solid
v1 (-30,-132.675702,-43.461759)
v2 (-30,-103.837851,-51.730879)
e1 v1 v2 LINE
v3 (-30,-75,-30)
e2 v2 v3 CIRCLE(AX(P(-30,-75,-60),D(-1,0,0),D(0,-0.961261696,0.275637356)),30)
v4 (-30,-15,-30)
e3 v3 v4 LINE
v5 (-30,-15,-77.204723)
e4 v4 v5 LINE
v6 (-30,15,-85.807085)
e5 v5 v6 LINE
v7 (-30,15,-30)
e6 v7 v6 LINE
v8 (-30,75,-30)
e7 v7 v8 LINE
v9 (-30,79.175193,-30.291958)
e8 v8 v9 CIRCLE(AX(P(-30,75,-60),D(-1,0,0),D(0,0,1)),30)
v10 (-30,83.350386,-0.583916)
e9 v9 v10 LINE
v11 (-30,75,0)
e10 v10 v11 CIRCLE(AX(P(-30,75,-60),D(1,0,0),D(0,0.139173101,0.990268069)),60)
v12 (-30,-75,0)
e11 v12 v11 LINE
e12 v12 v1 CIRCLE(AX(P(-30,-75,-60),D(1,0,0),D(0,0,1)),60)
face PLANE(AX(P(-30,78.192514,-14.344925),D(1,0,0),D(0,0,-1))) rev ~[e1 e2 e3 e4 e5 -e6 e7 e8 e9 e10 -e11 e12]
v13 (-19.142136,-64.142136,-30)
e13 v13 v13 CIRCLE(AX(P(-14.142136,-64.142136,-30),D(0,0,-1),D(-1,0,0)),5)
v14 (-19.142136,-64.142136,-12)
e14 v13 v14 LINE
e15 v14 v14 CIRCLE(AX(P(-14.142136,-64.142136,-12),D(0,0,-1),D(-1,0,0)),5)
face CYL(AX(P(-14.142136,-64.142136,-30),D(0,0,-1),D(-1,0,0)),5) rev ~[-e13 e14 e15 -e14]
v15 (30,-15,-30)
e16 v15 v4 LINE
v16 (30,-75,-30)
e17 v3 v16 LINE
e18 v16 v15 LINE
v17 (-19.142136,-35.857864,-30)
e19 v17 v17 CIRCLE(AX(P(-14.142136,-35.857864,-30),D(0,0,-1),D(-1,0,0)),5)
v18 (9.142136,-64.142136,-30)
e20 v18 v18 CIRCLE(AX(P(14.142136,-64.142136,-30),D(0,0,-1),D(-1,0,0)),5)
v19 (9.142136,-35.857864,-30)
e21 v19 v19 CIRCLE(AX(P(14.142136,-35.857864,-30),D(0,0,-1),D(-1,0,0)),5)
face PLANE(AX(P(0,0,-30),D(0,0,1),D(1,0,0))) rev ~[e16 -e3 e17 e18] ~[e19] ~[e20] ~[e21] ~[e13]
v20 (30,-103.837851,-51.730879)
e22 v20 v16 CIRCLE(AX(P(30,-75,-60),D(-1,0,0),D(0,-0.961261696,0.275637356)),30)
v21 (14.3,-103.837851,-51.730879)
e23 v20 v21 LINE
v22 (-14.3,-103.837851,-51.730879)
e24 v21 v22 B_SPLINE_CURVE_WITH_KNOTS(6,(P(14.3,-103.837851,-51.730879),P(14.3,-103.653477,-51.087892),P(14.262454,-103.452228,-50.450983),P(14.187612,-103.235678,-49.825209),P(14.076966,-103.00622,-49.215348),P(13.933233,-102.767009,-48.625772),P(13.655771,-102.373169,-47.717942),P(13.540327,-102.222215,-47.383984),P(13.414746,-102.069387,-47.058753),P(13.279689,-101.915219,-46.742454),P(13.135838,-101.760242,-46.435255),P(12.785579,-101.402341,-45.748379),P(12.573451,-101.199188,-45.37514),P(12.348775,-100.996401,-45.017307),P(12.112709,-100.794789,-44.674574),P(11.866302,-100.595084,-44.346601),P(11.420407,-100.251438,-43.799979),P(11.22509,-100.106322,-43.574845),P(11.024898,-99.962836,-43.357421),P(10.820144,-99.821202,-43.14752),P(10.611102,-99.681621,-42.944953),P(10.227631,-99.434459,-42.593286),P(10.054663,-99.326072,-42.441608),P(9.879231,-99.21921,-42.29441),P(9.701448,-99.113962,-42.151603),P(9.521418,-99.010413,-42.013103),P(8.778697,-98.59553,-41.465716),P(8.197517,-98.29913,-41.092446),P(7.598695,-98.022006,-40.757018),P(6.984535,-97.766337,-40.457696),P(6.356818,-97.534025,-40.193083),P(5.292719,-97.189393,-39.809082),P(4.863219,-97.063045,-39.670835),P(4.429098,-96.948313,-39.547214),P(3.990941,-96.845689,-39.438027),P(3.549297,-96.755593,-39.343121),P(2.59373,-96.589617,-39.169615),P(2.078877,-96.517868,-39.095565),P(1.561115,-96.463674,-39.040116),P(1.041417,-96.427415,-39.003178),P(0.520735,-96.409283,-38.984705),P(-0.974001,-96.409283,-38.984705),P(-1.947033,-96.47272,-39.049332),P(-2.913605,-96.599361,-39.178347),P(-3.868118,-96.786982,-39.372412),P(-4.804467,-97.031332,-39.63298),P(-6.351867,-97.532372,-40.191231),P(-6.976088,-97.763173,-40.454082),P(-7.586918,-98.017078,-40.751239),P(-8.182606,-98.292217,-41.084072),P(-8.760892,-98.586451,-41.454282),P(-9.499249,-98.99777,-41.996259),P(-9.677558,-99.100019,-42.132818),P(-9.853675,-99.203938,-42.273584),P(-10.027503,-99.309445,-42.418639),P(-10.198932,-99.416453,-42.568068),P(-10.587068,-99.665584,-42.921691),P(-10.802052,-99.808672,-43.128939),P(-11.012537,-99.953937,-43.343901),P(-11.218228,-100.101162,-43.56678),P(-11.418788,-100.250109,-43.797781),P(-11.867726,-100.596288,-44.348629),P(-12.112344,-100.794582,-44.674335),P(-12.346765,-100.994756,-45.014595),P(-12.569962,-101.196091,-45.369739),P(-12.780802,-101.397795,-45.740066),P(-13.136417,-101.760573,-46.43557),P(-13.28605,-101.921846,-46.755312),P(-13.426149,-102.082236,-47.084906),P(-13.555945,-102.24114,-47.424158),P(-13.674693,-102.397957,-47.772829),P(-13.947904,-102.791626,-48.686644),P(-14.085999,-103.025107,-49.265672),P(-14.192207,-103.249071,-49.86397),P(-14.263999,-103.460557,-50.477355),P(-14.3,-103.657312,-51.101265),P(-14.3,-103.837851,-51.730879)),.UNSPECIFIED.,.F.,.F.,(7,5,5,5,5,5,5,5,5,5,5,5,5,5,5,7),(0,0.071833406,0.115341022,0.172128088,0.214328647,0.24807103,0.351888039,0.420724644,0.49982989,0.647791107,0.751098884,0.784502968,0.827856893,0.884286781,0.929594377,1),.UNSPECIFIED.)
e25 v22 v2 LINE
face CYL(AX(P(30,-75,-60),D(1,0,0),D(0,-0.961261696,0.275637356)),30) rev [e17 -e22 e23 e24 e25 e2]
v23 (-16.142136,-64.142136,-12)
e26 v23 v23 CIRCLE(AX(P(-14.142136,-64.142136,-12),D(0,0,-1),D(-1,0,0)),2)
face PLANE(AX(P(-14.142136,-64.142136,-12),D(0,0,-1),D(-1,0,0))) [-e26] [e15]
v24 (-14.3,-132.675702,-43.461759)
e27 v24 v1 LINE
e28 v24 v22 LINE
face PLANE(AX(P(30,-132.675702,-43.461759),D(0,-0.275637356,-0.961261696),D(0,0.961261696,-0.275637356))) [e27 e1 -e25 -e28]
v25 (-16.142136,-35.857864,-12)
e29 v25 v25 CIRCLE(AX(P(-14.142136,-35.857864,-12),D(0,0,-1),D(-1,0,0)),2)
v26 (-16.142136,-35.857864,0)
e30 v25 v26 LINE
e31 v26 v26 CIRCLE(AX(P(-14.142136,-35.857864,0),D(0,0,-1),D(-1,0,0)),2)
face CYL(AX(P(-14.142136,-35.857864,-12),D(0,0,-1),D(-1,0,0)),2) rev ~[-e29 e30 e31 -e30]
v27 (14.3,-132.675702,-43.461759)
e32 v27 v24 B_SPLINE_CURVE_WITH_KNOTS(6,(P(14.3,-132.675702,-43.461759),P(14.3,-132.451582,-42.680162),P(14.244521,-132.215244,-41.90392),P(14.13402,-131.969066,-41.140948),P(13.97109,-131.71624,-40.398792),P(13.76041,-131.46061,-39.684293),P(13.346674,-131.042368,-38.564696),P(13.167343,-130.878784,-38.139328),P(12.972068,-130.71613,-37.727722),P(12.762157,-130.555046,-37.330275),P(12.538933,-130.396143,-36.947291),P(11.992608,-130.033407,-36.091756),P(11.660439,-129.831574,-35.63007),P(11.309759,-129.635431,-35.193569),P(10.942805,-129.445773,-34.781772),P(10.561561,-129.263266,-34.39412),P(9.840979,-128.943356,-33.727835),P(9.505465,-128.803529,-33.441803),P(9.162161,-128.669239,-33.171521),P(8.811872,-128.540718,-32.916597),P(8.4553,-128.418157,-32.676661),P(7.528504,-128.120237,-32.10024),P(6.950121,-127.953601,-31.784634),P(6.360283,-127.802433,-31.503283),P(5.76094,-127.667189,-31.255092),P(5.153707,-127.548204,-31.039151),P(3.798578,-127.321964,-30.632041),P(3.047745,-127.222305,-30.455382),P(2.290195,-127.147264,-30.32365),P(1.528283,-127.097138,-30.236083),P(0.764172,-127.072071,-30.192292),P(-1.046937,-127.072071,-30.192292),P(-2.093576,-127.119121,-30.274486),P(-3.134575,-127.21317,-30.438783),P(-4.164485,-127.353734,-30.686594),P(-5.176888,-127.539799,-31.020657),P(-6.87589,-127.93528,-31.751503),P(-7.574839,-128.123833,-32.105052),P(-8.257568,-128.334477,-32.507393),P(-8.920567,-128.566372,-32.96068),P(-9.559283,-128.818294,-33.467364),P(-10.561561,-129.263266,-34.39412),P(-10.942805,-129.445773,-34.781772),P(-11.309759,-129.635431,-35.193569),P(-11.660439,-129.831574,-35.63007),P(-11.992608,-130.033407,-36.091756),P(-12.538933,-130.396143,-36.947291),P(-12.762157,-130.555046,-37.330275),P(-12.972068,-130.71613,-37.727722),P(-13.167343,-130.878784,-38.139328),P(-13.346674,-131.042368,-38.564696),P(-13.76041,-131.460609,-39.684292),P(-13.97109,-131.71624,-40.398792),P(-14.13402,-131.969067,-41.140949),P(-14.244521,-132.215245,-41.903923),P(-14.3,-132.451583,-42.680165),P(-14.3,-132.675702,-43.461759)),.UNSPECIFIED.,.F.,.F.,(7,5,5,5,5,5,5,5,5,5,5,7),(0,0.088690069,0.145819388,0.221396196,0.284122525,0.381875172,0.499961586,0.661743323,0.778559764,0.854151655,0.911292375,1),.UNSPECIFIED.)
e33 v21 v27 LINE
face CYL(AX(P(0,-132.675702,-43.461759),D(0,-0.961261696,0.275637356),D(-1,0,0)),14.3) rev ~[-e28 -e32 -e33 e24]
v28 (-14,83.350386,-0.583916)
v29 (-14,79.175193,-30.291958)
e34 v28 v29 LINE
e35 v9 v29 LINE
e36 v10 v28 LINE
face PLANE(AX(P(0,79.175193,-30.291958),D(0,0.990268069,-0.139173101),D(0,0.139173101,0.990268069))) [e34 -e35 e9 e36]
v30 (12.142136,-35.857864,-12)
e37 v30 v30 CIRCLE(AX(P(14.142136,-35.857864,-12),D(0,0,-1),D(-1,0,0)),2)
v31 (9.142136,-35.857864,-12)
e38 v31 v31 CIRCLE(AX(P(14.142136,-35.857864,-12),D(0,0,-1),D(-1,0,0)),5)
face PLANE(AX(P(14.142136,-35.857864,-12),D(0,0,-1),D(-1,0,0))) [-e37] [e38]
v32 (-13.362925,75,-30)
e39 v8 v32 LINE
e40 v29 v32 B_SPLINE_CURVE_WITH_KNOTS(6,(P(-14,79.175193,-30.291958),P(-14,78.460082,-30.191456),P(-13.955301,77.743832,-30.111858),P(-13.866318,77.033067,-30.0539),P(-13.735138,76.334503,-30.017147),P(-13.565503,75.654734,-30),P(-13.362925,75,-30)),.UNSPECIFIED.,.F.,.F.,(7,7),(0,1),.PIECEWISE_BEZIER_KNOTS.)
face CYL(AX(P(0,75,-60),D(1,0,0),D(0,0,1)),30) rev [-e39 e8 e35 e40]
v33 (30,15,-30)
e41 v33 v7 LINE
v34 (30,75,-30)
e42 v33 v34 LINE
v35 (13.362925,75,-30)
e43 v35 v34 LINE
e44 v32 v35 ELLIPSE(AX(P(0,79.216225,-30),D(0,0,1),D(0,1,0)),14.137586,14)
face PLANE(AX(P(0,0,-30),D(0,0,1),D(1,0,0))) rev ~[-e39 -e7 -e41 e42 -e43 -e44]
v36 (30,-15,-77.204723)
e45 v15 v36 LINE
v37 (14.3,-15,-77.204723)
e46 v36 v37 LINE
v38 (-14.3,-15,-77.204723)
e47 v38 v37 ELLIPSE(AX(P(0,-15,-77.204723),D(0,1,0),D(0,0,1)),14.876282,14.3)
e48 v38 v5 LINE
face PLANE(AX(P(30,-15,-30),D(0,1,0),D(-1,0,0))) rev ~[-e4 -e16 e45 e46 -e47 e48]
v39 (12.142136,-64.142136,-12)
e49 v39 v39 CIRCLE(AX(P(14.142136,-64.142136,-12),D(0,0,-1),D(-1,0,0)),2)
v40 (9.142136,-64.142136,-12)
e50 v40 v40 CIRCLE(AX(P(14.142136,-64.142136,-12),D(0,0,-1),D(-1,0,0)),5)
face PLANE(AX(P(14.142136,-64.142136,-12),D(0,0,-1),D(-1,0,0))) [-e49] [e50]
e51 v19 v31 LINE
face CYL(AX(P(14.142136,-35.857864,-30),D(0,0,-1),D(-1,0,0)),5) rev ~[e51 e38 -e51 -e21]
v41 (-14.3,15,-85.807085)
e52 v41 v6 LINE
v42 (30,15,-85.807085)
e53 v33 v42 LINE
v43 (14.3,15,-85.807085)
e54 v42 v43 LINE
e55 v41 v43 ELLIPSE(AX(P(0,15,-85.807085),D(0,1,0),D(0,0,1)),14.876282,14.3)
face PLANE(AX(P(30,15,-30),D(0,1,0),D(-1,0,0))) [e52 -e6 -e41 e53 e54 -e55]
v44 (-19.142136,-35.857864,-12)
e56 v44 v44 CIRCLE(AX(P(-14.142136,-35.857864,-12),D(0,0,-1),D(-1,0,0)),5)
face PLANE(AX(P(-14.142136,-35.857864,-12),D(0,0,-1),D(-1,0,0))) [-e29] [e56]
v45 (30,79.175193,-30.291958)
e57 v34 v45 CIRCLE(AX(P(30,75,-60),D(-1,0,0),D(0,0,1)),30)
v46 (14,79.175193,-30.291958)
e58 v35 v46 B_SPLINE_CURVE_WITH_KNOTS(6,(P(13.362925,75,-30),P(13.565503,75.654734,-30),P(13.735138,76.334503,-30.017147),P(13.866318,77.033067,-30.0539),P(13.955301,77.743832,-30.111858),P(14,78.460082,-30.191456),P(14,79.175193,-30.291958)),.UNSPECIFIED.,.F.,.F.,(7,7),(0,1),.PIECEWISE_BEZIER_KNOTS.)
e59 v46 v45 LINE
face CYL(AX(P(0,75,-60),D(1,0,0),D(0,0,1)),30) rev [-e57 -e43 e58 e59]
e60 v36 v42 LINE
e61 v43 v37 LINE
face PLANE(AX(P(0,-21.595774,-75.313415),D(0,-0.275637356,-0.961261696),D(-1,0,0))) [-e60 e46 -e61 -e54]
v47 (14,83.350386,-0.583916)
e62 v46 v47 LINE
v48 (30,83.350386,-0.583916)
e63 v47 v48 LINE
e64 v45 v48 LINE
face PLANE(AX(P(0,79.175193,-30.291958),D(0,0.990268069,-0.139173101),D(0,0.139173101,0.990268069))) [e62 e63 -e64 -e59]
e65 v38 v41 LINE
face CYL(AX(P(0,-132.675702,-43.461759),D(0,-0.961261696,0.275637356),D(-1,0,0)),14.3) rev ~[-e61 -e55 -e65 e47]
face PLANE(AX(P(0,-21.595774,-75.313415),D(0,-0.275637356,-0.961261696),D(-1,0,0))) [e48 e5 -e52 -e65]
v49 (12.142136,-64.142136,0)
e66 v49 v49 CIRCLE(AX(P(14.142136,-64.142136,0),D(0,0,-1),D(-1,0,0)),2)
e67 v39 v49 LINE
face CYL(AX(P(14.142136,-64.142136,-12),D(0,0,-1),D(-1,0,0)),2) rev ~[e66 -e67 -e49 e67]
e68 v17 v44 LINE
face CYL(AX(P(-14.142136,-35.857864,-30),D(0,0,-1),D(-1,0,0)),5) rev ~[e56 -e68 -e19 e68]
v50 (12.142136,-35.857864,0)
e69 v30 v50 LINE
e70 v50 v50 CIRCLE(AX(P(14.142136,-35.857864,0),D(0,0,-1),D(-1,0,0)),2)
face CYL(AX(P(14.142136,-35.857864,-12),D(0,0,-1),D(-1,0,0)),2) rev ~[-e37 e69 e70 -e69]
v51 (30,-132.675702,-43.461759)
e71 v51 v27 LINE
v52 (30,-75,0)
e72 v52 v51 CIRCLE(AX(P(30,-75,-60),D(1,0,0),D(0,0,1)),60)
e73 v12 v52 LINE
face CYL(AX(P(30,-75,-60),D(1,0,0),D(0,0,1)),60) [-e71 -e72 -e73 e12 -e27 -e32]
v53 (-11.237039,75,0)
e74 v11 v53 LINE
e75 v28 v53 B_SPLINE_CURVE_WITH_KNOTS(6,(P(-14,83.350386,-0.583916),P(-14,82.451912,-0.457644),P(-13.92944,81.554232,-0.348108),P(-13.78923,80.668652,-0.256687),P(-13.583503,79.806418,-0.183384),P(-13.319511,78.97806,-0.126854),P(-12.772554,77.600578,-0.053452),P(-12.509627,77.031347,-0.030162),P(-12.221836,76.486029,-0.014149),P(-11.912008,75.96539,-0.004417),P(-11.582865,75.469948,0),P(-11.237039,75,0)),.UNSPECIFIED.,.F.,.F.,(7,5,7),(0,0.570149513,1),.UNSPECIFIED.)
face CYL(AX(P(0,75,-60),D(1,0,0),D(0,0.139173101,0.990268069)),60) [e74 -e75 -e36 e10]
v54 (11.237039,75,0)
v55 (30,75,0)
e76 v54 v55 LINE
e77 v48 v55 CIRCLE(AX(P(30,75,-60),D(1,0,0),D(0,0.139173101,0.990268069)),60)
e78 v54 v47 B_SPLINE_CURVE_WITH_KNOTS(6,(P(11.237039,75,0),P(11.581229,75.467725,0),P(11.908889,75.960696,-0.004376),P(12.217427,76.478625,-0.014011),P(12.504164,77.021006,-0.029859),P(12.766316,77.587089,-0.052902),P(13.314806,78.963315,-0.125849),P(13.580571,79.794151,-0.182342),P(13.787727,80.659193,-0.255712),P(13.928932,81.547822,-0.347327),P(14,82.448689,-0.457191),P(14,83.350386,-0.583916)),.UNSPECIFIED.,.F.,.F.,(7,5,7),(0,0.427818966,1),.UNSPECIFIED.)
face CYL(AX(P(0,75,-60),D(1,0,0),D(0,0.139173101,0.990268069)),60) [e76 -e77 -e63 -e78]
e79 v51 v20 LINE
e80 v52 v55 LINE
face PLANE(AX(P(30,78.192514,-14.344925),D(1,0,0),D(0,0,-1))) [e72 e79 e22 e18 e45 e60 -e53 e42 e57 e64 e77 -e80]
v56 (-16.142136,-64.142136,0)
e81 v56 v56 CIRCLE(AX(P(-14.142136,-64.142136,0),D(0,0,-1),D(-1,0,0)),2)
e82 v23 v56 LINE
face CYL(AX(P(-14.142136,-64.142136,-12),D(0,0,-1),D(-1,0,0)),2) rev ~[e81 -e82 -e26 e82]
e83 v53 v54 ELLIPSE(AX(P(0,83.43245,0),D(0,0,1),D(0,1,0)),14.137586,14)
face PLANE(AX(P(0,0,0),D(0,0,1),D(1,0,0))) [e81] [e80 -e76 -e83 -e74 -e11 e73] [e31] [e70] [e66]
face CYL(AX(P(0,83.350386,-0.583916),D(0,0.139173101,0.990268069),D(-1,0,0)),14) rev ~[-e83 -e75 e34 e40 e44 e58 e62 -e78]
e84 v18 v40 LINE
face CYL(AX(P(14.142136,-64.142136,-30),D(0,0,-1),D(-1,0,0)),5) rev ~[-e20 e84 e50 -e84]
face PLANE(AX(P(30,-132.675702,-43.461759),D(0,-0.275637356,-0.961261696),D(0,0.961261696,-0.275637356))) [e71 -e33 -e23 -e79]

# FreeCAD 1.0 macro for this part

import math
import FreeCAD as App
import Part
import Sketcher

V = App.Vector
Q = App.Units.Quantity

doc = App.newDocument("Part")
body = doc.addObject("PartDesign::Body", "Body")

sketch1 = body.newObject("Sketcher::SketchObject", "Sketch")
sketch1.AttachmentSupport = (doc.getObject("XY_Plane"), [""])
sketch1.MapMode = "FlatFace"
sketch1.addGeometry([
    Part.LineSegment(V(-30, 75, 0), V(-30, -75, 0)),
    Part.LineSegment(V(-30, -75, 0), V(30, -75, 0)),
    Part.LineSegment(V(30, -75, 0), V(30, 75, 0)),
    Part.LineSegment(V(30, 75, 0), V(-30, 75, 0)),
], False)
sketch1.addConstraint([
    Sketcher.Constraint("Coincident", 0, 2, 1, 1),
    Sketcher.Constraint("Coincident", 1, 2, 2, 1),
    Sketcher.Constraint("Coincident", 2, 2, 3, 1),
    Sketcher.Constraint("Coincident", 3, 2, 0, 1),
    Sketcher.Constraint("Vertical", 0),
    Sketcher.Constraint("Horizontal", 1),
    Sketcher.Constraint("Vertical", 2),
    Sketcher.Constraint("Horizontal", 3),
    Sketcher.Constraint("Symmetric", 0, 2, 2, 2, -1, 1),
    Sketcher.Constraint("DistanceX", 1, 1, 1, 2, 60.0),
    Sketcher.Constraint("DistanceY", 0, 2, 0, 1, 150.0),
])
pad1 = body.newObject("PartDesign::Pad", "Pad")
pad1.Profile = sketch1
pad1.Length = 30
pad1.Reversed = True

sketch2 = body.newObject("Sketcher::SketchObject", "Sketch001")
sketch2.AttachmentSupport = (doc.getObject("XY_Plane"), [""])
sketch2.MapMode = "FlatFace"
sketch2.AttachmentOffset = App.Placement(V(0, 0, -30), App.Rotation())
sketch2.addGeometry([
    Part.Circle(V(14, -36, 0), V(0, 0, 1), 5),
    Part.Circle(V(-14, -36, 0), V(0, 0, 1), 5),
    Part.Circle(V(-14, -64, 0), V(0, 0, 1), 5),
    Part.Circle(V(14, -64, 0), V(0, 0, 1), 5),
], False)
sketch2.addConstraint([
    Sketcher.Constraint("Equal", 0, 1),
    Sketcher.Constraint("Equal", 1, 2),
    Sketcher.Constraint("Equal", 2, 3),
    Sketcher.Constraint("Symmetric", 0, 3, 1, 3, -2),
    Sketcher.Constraint("Symmetric", 2, 3, 3, 3, -2),
    Sketcher.Constraint("Vertical", 1, 3, 2, 3),
    Sketcher.Constraint("Diameter", 0, 10.0),
    Sketcher.Constraint("DistanceX", 1, 3, 0, 3, 28.284271),
    Sketcher.Constraint("DistanceY", 2, 3, 1, 3, 28.284271),
    Sketcher.Constraint("DistanceY", 0, 3, -1, 1, 35.857864),
])
pocket1 = body.newObject("PartDesign::Pocket", "Pocket")
pocket1.Profile = sketch2
pocket1.Length = 18
pocket1.Reversed = True

sketch3 = body.newObject("Sketcher::SketchObject", "Sketch002")
sketch3.AttachmentSupport = (doc.getObject("XY_Plane"), [""])
sketch3.MapMode = "FlatFace"
sketch3.AttachmentOffset = App.Placement(V(0, 0, -12), App.Rotation())
sketch3.addGeometry([
    Part.Circle(V(-14.1, -64.1, 0), V(0, 0, 1), 2),
    Part.Circle(V(14.1, -64.1, 0), V(0, 0, 1), 2),
    Part.Circle(V(14.1, -35.9, 0), V(0, 0, 1), 2),
    Part.Circle(V(-14.1, -35.9, 0), V(0, 0, 1), 2),
], False)
sketch3.addConstraint([
    Sketcher.Constraint("Equal", 0, 1),
    Sketcher.Constraint("Equal", 1, 2),
    Sketcher.Constraint("Equal", 2, 3),
    Sketcher.Constraint("Symmetric", 0, 3, 1, 3, -2),
    Sketcher.Constraint("Symmetric", 2, 3, 3, 3, -2),
    Sketcher.Constraint("Vertical", 1, 3, 2, 3),
    Sketcher.Constraint("Diameter", 0, 4.0),
    Sketcher.Constraint("DistanceX", 0, 3, 1, 3, 28.284271),
    Sketcher.Constraint("DistanceY", 1, 3, 2, 3, 28.284271),
    Sketcher.Constraint("DistanceY", 0, 3, -1, 1, 64.142136),
])
pocket2 = body.newObject("PartDesign::Pocket", "Pocket001")
pocket2.Profile = sketch3
pocket2.Type = "ThroughAll"
pocket2.Reversed = True

sketch4 = body.newObject("Sketcher::SketchObject", "Sketch003")
sketch4.AttachmentSupport = (doc.getObject("YZ_Plane"), [""])
sketch4.MapMode = "FlatFace"
sketch4.AttachmentOffset = App.Placement(V(0, 0, 30), App.Rotation())
sketch4.addGeometry([
    Part.LineSegment(V(-133, -43, 0), V(-104, -52, 0)),
    Part.ArcOfCircle(Part.Circle(V(-75, -60, 0), V(0, 0, 1), 30), math.radians(90), math.radians(164)),
    Part.LineSegment(V(-75, -30, 0), V(-75, 0, 0)),
    Part.ArcOfCircle(Part.Circle(V(-75, -60, 0), V(0, 0, 1), 60), math.radians(90), math.radians(164)),
], False)
sketch4.addConstraint([
    Sketcher.Constraint("Coincident", 0, 2, 1, 2),
    Sketcher.Constraint("Coincident", 1, 1, 2, 1),
    Sketcher.Constraint("Coincident", 2, 2, 3, 1),
    Sketcher.Constraint("Coincident", 3, 2, 0, 1),
    Sketcher.Constraint("Vertical", 2),
    Sketcher.Constraint("Coincident", 3, 3, 1, 3),
    Sketcher.Constraint("PointOnObject", 2, 2, -1),
    Sketcher.Constraint("Vertical", 3, 3, 1, 1),
    Sketcher.Constraint("Radius", 1, 30.0),
    Sketcher.Constraint("Radius", 3, 60.0),
    Sketcher.Constraint("Angle", 0, Q("-16 deg")),
    Sketcher.Constraint("DistanceX", 1, 3, -1, 1, 75.0),
    Sketcher.Constraint("DistanceX", 3, 2, -1, 1, 132.675702),
])
pad2 = body.newObject("PartDesign::Pad", "Pad001")
pad2.Profile = sketch4
pad2.Length = 60
pad2.Reversed = True

sketch5 = body.newObject("Sketcher::SketchObject", "Sketch004")
sketch5.AttachmentSupport = (doc.getObject("XY_Plane"), [""])
sketch5.MapMode = "FlatFace"
sketch5.AttachmentOffset = App.Placement(V(0, 0, -30), App.Rotation())
sketch5.addGeometry([
    Part.LineSegment(V(30, 15, 0), V(30, -15, 0)),
    Part.LineSegment(V(30, -15, 0), V(-30, -15, 0)),
    Part.LineSegment(V(-30, -15, 0), V(-30, 15, 0)),
    Part.LineSegment(V(-30, 15, 0), V(30, 15, 0)),
], False)
sketch5.addConstraint([
    Sketcher.Constraint("Coincident", 0, 2, 1, 1),
    Sketcher.Constraint("Coincident", 1, 2, 2, 1),
    Sketcher.Constraint("Coincident", 2, 2, 3, 1),
    Sketcher.Constraint("Coincident", 3, 2, 0, 1),
    Sketcher.Constraint("Vertical", 0),
    Sketcher.Constraint("Horizontal", 1),
    Sketcher.Constraint("Vertical", 2),
    Sketcher.Constraint("Horizontal", 3),
    Sketcher.Constraint("Symmetric", 0, 2, 2, 2, -1, 1),
    Sketcher.Constraint("DistanceX", 1, 2, 1, 1, 60.0),
    Sketcher.Constraint("DistanceY", 0, 2, 0, 1, 30.0),
])
pad3 = body.newObject("PartDesign::Pad", "Pad002")
pad3.Profile = sketch5
pad3.Length = 60
pad3.Reversed = True

sketch6 = body.newObject("Sketcher::SketchObject", "Sketch005")
sketch6.Placement = App.Placement(V(0, -21.595774, -75.313415), App.Rotation(V(-1, 0, 0), V(0, 0.961261696, -0.275637356), V(0, -0.275637356, -0.961261696), "ZXY"))
sketch6.addGeometry([
    Part.LineSegment(V(-70, 55, 0), V(-70, -55, 0)),
    Part.LineSegment(V(-70, -55, 0), V(70, -55, 0)),
    Part.LineSegment(V(70, -55, 0), V(70, 55, 0)),
    Part.LineSegment(V(70, 55, 0), V(-70, 55, 0)),
], False)
sketch6.addConstraint([
    Sketcher.Constraint("Coincident", 0, 2, 1, 1),
    Sketcher.Constraint("Coincident", 1, 2, 2, 1),
    Sketcher.Constraint("Coincident", 2, 2, 3, 1),
    Sketcher.Constraint("Coincident", 3, 2, 0, 1),
    Sketcher.Constraint("Vertical", 0),
    Sketcher.Constraint("Horizontal", 1),
    Sketcher.Constraint("Vertical", 2),
    Sketcher.Constraint("Horizontal", 3),
    Sketcher.Constraint("Symmetric", 0, 2, 2, 2, -1, 1),
    Sketcher.Constraint("DistanceX", 1, 1, 1, 2, 139.095899),
    Sketcher.Constraint("DistanceY", 0, 2, 0, 1, 109.690247),
])
pocket3 = body.newObject("PartDesign::Pocket", "Pocket002")
pocket3.Profile = sketch6
pocket3.Type = "ThroughAll"
pocket3.Reversed = True

sketch7 = body.newObject("Sketcher::SketchObject", "Sketch006")
sketch7.Placement = App.Placement(V(30, -132.675702, -43.461759), App.Rotation(V(-1, 0, 0), V(0, -0.275637356, -0.961261696), V(0, -0.961261696, 0.275637356), "ZXY"))
sketch7.addGeometry(Part.Circle(V(30, 0, 0), V(0, 0, 1), 14), False)
sketch7.addConstraint([
    Sketcher.Constraint("PointOnObject", 0, 3, -1),
    Sketcher.Constraint("Diameter", 0, 28.6),
    Sketcher.Constraint("DistanceX", -1, 1, 0, 3, 30.0),
])
pocket4 = body.newObject("PartDesign::Pocket", "Pocket003")
pocket4.Profile = sketch7
pocket4.Type = "ThroughAll"

sketch8 = body.newObject("Sketcher::SketchObject", "Sketch007")
sketch8.AttachmentSupport = (doc.getObject("YZ_Plane"), [""])
sketch8.MapMode = "FlatFace"
sketch8.addGeometry([
    Part.ArcOfCircle(Part.Circle(V(75, -60, 0), V(0, 0, 1), 30), math.radians(82), math.radians(90)),
    Part.LineSegment(V(79.2, -30.3, 0), V(83.4, -0.6, 0)),
    Part.ArcOfCircle(Part.Circle(V(75, -60, 0), V(0, 0, 1), 60), math.radians(82), math.radians(90)),
    Part.LineSegment(V(75, 0, 0), V(75, -30, 0)),
], False)
sketch8.addConstraint([
    Sketcher.Constraint("Coincident", 0, 1, 1, 1),
    Sketcher.Constraint("Coincident", 1, 2, 2, 1),
    Sketcher.Constraint("Coincident", 2, 2, 3, 1),
    Sketcher.Constraint("Coincident", 3, 2, 0, 2),
    Sketcher.Constraint("Vertical", 3),
    Sketcher.Constraint("Coincident", 2, 3, 0, 3),
    Sketcher.Constraint("PointOnObject", 2, 2, -1),
    Sketcher.Constraint("Vertical", 0, 3, 2, 2),
    Sketcher.Constraint("Radius", 0, 30.0),
    Sketcher.Constraint("Radius", 2, 60.0),
    Sketcher.Constraint("Angle", 1, Q("82 deg")),
    Sketcher.Constraint("DistanceX", -1, 1, 0, 3, 75.0),
    Sketcher.Constraint("DistanceY", 2, 3, 0, 1, 29.708042),
])
pad4 = body.newObject("PartDesign::Pad", "Pad003")
pad4.Profile = sketch8
pad4.Length = 60
pad4.Midplane = True

sketch9 = body.newObject("Sketcher::SketchObject", "Sketch008")
sketch9.Placement = App.Placement(V(30, 83.350386, -0.583916), App.Rotation(V(1, 0, 0), V(0, 0.990268069, -0.139173101), V(0, 0.139173101, 0.990268069), "ZXY"))
sketch9.addGeometry(Part.Circle(V(-30, 0, 0), V(0, 0, 1), 14), False)
sketch9.addConstraint([
    Sketcher.Constraint("PointOnObject", 0, 3, -1),
    Sketcher.Constraint("Diameter", 0, 28.0),
    Sketcher.Constraint("DistanceX", 0, 3, -1, 1, 30.0),
])
pocket5 = body.newObject("PartDesign::Pocket", "Pocket004")
pocket5.Profile = sketch9
pocket5.Type = "ThroughAll"

doc.recompute()
